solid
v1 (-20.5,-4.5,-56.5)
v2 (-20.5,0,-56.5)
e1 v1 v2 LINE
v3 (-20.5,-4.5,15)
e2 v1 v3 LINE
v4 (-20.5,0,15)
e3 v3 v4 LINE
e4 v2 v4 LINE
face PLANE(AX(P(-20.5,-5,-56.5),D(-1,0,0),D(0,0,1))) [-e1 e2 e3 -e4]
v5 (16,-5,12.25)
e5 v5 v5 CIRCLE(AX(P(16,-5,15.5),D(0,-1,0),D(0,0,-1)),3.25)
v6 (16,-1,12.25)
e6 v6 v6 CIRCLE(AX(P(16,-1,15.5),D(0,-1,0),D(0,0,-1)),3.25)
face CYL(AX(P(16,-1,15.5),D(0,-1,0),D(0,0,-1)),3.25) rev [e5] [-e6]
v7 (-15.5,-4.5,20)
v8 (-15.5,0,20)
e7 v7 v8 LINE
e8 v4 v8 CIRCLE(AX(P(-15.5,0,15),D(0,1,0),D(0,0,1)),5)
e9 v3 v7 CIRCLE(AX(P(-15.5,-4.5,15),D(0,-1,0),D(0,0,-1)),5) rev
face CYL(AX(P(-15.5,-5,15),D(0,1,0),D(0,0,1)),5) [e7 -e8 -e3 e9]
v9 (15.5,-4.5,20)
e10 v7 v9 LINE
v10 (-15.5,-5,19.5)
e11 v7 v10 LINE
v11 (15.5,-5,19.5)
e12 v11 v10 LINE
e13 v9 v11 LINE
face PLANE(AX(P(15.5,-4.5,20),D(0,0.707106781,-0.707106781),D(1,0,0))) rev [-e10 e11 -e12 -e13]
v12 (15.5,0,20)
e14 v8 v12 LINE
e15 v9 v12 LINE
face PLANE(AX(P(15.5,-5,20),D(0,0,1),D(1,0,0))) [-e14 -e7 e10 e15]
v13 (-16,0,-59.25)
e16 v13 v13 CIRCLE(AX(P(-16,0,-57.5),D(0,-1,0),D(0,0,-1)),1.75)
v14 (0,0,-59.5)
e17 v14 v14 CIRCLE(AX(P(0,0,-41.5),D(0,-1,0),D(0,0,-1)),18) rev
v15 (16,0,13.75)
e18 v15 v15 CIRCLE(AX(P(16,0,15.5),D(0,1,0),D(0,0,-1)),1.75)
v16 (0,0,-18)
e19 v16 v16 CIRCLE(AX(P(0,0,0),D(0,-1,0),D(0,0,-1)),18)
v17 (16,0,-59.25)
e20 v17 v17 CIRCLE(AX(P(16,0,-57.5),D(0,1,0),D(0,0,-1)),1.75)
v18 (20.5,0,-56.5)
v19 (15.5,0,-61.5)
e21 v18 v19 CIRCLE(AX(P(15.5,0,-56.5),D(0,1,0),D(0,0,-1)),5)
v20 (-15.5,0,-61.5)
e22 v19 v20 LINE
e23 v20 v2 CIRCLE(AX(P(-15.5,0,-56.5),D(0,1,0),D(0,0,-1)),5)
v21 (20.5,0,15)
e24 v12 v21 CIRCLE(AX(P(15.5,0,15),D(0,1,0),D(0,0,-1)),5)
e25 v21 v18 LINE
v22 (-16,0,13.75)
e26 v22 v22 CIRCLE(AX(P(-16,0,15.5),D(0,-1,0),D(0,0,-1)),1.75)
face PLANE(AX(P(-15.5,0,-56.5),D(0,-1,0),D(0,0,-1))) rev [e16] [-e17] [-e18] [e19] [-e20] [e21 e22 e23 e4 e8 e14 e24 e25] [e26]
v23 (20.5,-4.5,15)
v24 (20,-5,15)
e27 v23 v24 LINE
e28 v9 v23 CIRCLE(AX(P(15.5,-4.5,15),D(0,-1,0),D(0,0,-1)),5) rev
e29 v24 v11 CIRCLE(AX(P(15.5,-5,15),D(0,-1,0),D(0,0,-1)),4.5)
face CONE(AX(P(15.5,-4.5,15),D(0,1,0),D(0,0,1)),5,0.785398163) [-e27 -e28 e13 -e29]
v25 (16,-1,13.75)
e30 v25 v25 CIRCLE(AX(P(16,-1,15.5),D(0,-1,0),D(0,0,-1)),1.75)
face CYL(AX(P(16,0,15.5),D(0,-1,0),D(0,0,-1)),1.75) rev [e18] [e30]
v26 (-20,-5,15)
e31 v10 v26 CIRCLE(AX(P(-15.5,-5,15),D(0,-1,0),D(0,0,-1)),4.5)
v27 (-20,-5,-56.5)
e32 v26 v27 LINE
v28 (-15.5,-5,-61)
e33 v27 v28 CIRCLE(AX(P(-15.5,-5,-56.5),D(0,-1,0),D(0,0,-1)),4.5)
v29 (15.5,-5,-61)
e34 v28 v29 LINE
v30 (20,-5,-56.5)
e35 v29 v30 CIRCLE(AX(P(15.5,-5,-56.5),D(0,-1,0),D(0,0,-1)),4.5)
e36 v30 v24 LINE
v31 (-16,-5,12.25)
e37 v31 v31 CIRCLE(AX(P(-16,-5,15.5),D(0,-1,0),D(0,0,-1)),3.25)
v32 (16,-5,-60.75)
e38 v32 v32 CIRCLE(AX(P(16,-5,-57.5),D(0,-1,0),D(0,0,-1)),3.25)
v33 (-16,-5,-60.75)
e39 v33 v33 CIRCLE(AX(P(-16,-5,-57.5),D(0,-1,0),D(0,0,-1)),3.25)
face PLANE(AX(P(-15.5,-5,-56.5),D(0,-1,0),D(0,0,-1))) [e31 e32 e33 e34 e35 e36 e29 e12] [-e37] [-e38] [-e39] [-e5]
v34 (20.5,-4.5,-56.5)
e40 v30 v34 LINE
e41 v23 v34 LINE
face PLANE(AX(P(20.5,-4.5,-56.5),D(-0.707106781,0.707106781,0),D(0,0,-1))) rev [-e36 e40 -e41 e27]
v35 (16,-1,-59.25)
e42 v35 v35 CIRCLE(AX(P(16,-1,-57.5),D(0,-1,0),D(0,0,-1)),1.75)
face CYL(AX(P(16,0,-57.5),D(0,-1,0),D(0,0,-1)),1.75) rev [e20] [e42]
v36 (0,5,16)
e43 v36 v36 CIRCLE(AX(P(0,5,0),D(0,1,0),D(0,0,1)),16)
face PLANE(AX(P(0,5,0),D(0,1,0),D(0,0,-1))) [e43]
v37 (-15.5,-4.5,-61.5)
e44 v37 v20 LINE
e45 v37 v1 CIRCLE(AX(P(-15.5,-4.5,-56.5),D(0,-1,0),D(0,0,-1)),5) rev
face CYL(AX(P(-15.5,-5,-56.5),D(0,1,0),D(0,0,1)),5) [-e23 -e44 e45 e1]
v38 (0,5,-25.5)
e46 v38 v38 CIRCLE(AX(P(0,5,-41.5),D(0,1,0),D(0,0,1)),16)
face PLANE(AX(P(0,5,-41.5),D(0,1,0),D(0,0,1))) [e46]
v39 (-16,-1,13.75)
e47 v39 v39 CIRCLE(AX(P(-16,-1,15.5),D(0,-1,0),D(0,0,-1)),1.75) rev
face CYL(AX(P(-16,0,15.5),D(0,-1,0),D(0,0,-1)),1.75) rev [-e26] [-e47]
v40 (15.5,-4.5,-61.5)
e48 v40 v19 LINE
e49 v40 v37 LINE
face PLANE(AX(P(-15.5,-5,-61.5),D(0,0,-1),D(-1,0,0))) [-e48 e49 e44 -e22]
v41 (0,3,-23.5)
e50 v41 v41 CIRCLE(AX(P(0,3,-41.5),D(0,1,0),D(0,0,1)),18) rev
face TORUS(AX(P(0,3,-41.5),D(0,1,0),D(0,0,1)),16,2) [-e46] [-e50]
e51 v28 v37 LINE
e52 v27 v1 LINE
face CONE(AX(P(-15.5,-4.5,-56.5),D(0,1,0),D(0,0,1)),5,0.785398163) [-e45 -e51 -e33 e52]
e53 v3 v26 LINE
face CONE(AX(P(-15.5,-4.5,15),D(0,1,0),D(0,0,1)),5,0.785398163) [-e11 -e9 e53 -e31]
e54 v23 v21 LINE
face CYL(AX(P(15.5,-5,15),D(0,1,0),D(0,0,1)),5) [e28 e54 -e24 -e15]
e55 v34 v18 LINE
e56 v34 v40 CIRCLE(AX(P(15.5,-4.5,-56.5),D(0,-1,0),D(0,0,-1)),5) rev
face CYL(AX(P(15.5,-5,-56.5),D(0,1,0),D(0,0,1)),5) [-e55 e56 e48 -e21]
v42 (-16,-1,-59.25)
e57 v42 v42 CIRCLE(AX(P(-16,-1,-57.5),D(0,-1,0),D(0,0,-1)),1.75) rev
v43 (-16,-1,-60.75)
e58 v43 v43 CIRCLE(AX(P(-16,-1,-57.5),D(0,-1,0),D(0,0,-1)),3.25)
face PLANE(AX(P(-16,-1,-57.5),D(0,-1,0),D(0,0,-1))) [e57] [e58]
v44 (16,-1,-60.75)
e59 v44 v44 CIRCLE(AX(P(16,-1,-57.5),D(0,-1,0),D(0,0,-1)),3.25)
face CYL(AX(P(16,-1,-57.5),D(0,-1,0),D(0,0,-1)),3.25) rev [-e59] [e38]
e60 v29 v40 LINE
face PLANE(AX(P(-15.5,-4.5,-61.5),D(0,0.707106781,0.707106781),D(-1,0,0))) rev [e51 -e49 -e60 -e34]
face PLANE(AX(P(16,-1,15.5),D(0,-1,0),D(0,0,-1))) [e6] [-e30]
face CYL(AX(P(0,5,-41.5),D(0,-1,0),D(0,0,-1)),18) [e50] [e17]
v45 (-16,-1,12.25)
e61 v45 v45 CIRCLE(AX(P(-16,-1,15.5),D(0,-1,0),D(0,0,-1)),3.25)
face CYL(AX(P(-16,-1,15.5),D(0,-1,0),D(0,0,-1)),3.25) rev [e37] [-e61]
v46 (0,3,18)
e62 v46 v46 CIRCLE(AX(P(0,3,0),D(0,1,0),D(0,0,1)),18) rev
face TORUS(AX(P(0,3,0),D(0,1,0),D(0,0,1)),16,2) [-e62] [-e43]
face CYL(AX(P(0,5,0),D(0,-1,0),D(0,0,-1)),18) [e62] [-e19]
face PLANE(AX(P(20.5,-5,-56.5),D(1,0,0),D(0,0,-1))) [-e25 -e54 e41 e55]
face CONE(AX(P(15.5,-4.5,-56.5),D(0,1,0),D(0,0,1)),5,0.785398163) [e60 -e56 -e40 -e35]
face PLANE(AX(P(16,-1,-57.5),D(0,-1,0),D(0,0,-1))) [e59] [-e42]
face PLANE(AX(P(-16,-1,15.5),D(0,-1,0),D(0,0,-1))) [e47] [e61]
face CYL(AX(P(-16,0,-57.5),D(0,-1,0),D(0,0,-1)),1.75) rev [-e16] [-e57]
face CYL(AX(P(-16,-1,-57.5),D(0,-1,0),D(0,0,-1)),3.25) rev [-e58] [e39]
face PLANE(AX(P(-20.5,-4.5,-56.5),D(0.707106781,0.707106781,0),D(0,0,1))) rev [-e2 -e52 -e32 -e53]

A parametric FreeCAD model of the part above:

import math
import FreeCAD as App
import Part
import Sketcher
Q = App.Units.Quantity


def edges_at(feature, points):
    """Names of the edges that pass closest to the given points."""
    edges = feature.Shape.Edges
    near = lambda p: min(range(len(edges)), key=lambda i: edges[i].distToShape(Part.Vertex(*p))[0])
    return sorted({f"Edge{near(p) + 1}" for p in points})

doc = App.newDocument("Part")
body = doc.addObject("PartDesign::Body", "Body")

# Sketch on XZ plane
sketch1 = body.newObject("Sketcher::SketchObject", "Sketch")
sketch1.AttachmentSupport = (doc.getObject("XZ_Plane"), [""])
sketch1.MapMode = "FlatFace"
sketch1.addGeometry([
    Part.LineSegment(App.Vector(-20, -56, 0), App.Vector(-20, 15, 0)),  # 0
    Part.ArcOfCircle(Part.Circle(App.Vector(-16, 15, 0), App.Vector(0, 0, 1), 5), math.radians(90), math.radians(180)),  # 1
    Part.LineSegment(App.Vector(-16, 20, 0), App.Vector(16, 20, 0)),  # 2
    Part.ArcOfCircle(Part.Circle(App.Vector(16, 15, 0), App.Vector(0, 0, 1), 5), math.radians(0), math.radians(90)),  # 3
    Part.LineSegment(App.Vector(20, 15, 0), App.Vector(20, -56, 0)),  # 4
    Part.ArcOfCircle(Part.Circle(App.Vector(16, -56, 0), App.Vector(0, 0, 1), 5), math.radians(-90), math.radians(0)),  # 5
    Part.LineSegment(App.Vector(16, -62, 0), App.Vector(-16, -62, 0)),  # 6
    Part.ArcOfCircle(Part.Circle(App.Vector(-16, -56, 0), App.Vector(0, 0, 1), 5), math.radians(180), math.radians(270)),  # 7
], False)
sketch1.addConstraint([
    Sketcher.Constraint("Tangent", 0, 2, 1, 2),
    Sketcher.Constraint("Tangent", 1, 1, 2, 1),
    Sketcher.Constraint("Tangent", 2, 2, 3, 2),
    Sketcher.Constraint("Tangent", 3, 1, 4, 1),
    Sketcher.Constraint("Tangent", 4, 2, 5, 2),
    Sketcher.Constraint("Tangent", 5, 1, 6, 1),
    Sketcher.Constraint("Tangent", 6, 2, 7, 2),
    Sketcher.Constraint("Tangent", 7, 1, 0, 1),
    Sketcher.Constraint("Vertical", 0),
    Sketcher.Constraint("Horizontal", 2),
    Sketcher.Constraint("Vertical", 4),
    Sketcher.Constraint("Horizontal", 6),
    Sketcher.Constraint("Equal", 1, 3),
    Sketcher.Constraint("Equal", 3, 5),
    Sketcher.Constraint("Equal", 5, 7),
    Sketcher.Constraint("Radius", 1, Q("5 mm")),
    Sketcher.Constraint("DistanceX", 2, 1, 2, 2, Q("31 mm")),
    Sketcher.Constraint("DistanceY", 0, 1, 0, 2, Q("71.5 mm")),
    Sketcher.Constraint("DistanceY", -1, 1, 1, 3, Q("15 mm")),
    Sketcher.Constraint("DistanceX", 1, 3, -1, 1, Q("15.5 mm")),
])
pad1 = body.newObject("PartDesign::Pad", "Pad")
pad1.Profile = sketch1
pad1.Length = 5

# Sketch on XZ plane
sketch2 = body.newObject("Sketcher::SketchObject", "Sketch001")
sketch2.AttachmentSupport = (doc.getObject("XZ_Plane"), [""])
sketch2.MapMode = "FlatFace"
sketch2.AttachmentOffset = App.Placement(App.Vector(0, 0, 5), App.Rotation())
sketch2.addGeometry([
    Part.Circle(App.Vector(-16, -57.5, 0), App.Vector(0, 0, 1), 1.8),
    Part.Circle(App.Vector(-16, 15.5, 0), App.Vector(0, 0, 1), 1.8),
], False)
sketch2.addConstraint([
    Sketcher.Constraint("Equal", 0, 1),
    Sketcher.Constraint("Vertical", 0, 3, 1, 3),
    Sketcher.Constraint("Diameter", 0, Q("3.5 mm")),
    Sketcher.Constraint("DistanceX", 0, 3, -1, 1, Q("16 mm")),
    Sketcher.Constraint("DistanceY", 0, 3, 1, 3, Q("73 mm")),
    Sketcher.Constraint("DistanceY", 0, 3, -1, 1, Q("57.5 mm")),
])
pocket1 = body.newObject("PartDesign::Pocket", "Pocket")
pocket1.Profile = sketch2
pocket1.Length = 132.038456
pocket1.Midplane = True
doc.recompute()

mirrored = body.newObject("PartDesign::Mirrored", "Mirrored")
mirrored.Originals = [pocket1]
mirrored.MirrorPlane = (doc.getObject("YZ_Plane"), [""])
body.Tip = mirrored

# Sketch on XZ plane
sketch3 = body.newObject("Sketcher::SketchObject", "Sketch002")
sketch3.AttachmentSupport = (doc.getObject("XZ_Plane"), [""])
sketch3.MapMode = "FlatFace"
sketch3.addGeometry(Part.Circle(App.Vector(0, -42, 0), App.Vector(0, 0, 1), 18), False)
sketch3.addConstraint([
    Sketcher.Constraint("PointOnObject", 0, 3, -2),
    Sketcher.Constraint("Diameter", 0, Q("36 mm")),
    Sketcher.Constraint("DistanceY", 0, 3, -1, 1, Q("41.5 mm")),
])
pad2 = body.newObject("PartDesign::Pad", "Pad001")
pad2.Profile = sketch3
pad2.Length = 5
pad2.Reversed = True
doc.recompute()

fillet = body.newObject("PartDesign::Fillet", "Fillet")
fillet.Base = (pad2, edges_at(pad2, [(0, 5, -23.5)]))
fillet.Radius = 2
doc.recompute()

datumplane = body.newObject("PartDesign::Plane", "DatumPlane")
datumplane.AttachmentSupport = (doc.getObject("XY_Plane"), [""])
datumplane.MapMode = "FlatFace"
datumplane.AttachmentOffset = App.Placement(App.Vector(0, 0, -20.75), App.Rotation())
mirrored2 = body.newObject("PartDesign::Mirrored", "Mirrored001")
mirrored2.Originals = [pad2]
mirrored2.MirrorPlane = (datumplane, [""])
body.Tip = mirrored2
doc.recompute()

fillet2 = body.newObject("PartDesign::Fillet", "Fillet001")
fillet2.Base = (mirrored2, edges_at(mirrored2, [(0, 5, -18)]))
fillet2.Radius = 2

# Sketch on XZ plane
sketch4 = body.newObject("Sketcher::SketchObject", "Sketch003")
sketch4.AttachmentSupport = (doc.getObject("XZ_Plane"), [""])
sketch4.MapMode = "FlatFace"
sketch4.AttachmentOffset = App.Placement(App.Vector(0, 0, 5), App.Rotation())
sketch4.addGeometry([
    Part.Circle(App.Vector(-16, -57.5, 0), App.Vector(0, 0, 1), 3.2),
    Part.Circle(App.Vector(16, 15.5, 0), App.Vector(0, 0, 1), 3.2),
    Part.Circle(App.Vector(-16, 15.5, 0), App.Vector(0, 0, 1), 3.2),
    Part.Circle(App.Vector(16, -57.5, 0), App.Vector(0, 0, 1), 3.2),
], False)
sketch4.addConstraint([
    Sketcher.Constraint("Equal", 0, 1),
    Sketcher.Constraint("Equal", 1, 2),
    Sketcher.Constraint("Equal", 2, 3),
    Sketcher.Constraint("Symmetric", 1, 3, 2, 3, -2),
    Sketcher.Constraint("Symmetric", 0, 3, 3, 3, -2),
    Sketcher.Constraint("Vertical", 0, 3, 2, 3),
    Sketcher.Constraint("Diameter", 0, Q("6.5 mm")),
    Sketcher.Constraint("DistanceX", 0, 3, -1, 1, Q("16 mm")),
    Sketcher.Constraint("DistanceY", 0, 3, 1, 3, Q("73 mm")),
    Sketcher.Constraint("DistanceY", 0, 3, -1, 1, Q("57.5 mm")),
])
pocket2 = body.newObject("PartDesign::Pocket", "Pocket001")
pocket2.Profile = sketch4
pocket2.Length = 4
doc.recompute()

chamfer = body.newObject("PartDesign::Chamfer", "Chamfer")
chamfer.Base = (pocket2, edges_at(pocket2, [
    (-19.036, -5, 18.536),
    (0, -5, 20),
    (19.036, -5, 18.536),
    (20.5, -5, -20.75),
    (19.036, -5, -60.036),
    (0, -5, -61.5),
    (-19.036, -5, -60.036),
    (-20.5, -5, -20.75),
]))
chamfer.Size = 0.5

doc.recompute()
